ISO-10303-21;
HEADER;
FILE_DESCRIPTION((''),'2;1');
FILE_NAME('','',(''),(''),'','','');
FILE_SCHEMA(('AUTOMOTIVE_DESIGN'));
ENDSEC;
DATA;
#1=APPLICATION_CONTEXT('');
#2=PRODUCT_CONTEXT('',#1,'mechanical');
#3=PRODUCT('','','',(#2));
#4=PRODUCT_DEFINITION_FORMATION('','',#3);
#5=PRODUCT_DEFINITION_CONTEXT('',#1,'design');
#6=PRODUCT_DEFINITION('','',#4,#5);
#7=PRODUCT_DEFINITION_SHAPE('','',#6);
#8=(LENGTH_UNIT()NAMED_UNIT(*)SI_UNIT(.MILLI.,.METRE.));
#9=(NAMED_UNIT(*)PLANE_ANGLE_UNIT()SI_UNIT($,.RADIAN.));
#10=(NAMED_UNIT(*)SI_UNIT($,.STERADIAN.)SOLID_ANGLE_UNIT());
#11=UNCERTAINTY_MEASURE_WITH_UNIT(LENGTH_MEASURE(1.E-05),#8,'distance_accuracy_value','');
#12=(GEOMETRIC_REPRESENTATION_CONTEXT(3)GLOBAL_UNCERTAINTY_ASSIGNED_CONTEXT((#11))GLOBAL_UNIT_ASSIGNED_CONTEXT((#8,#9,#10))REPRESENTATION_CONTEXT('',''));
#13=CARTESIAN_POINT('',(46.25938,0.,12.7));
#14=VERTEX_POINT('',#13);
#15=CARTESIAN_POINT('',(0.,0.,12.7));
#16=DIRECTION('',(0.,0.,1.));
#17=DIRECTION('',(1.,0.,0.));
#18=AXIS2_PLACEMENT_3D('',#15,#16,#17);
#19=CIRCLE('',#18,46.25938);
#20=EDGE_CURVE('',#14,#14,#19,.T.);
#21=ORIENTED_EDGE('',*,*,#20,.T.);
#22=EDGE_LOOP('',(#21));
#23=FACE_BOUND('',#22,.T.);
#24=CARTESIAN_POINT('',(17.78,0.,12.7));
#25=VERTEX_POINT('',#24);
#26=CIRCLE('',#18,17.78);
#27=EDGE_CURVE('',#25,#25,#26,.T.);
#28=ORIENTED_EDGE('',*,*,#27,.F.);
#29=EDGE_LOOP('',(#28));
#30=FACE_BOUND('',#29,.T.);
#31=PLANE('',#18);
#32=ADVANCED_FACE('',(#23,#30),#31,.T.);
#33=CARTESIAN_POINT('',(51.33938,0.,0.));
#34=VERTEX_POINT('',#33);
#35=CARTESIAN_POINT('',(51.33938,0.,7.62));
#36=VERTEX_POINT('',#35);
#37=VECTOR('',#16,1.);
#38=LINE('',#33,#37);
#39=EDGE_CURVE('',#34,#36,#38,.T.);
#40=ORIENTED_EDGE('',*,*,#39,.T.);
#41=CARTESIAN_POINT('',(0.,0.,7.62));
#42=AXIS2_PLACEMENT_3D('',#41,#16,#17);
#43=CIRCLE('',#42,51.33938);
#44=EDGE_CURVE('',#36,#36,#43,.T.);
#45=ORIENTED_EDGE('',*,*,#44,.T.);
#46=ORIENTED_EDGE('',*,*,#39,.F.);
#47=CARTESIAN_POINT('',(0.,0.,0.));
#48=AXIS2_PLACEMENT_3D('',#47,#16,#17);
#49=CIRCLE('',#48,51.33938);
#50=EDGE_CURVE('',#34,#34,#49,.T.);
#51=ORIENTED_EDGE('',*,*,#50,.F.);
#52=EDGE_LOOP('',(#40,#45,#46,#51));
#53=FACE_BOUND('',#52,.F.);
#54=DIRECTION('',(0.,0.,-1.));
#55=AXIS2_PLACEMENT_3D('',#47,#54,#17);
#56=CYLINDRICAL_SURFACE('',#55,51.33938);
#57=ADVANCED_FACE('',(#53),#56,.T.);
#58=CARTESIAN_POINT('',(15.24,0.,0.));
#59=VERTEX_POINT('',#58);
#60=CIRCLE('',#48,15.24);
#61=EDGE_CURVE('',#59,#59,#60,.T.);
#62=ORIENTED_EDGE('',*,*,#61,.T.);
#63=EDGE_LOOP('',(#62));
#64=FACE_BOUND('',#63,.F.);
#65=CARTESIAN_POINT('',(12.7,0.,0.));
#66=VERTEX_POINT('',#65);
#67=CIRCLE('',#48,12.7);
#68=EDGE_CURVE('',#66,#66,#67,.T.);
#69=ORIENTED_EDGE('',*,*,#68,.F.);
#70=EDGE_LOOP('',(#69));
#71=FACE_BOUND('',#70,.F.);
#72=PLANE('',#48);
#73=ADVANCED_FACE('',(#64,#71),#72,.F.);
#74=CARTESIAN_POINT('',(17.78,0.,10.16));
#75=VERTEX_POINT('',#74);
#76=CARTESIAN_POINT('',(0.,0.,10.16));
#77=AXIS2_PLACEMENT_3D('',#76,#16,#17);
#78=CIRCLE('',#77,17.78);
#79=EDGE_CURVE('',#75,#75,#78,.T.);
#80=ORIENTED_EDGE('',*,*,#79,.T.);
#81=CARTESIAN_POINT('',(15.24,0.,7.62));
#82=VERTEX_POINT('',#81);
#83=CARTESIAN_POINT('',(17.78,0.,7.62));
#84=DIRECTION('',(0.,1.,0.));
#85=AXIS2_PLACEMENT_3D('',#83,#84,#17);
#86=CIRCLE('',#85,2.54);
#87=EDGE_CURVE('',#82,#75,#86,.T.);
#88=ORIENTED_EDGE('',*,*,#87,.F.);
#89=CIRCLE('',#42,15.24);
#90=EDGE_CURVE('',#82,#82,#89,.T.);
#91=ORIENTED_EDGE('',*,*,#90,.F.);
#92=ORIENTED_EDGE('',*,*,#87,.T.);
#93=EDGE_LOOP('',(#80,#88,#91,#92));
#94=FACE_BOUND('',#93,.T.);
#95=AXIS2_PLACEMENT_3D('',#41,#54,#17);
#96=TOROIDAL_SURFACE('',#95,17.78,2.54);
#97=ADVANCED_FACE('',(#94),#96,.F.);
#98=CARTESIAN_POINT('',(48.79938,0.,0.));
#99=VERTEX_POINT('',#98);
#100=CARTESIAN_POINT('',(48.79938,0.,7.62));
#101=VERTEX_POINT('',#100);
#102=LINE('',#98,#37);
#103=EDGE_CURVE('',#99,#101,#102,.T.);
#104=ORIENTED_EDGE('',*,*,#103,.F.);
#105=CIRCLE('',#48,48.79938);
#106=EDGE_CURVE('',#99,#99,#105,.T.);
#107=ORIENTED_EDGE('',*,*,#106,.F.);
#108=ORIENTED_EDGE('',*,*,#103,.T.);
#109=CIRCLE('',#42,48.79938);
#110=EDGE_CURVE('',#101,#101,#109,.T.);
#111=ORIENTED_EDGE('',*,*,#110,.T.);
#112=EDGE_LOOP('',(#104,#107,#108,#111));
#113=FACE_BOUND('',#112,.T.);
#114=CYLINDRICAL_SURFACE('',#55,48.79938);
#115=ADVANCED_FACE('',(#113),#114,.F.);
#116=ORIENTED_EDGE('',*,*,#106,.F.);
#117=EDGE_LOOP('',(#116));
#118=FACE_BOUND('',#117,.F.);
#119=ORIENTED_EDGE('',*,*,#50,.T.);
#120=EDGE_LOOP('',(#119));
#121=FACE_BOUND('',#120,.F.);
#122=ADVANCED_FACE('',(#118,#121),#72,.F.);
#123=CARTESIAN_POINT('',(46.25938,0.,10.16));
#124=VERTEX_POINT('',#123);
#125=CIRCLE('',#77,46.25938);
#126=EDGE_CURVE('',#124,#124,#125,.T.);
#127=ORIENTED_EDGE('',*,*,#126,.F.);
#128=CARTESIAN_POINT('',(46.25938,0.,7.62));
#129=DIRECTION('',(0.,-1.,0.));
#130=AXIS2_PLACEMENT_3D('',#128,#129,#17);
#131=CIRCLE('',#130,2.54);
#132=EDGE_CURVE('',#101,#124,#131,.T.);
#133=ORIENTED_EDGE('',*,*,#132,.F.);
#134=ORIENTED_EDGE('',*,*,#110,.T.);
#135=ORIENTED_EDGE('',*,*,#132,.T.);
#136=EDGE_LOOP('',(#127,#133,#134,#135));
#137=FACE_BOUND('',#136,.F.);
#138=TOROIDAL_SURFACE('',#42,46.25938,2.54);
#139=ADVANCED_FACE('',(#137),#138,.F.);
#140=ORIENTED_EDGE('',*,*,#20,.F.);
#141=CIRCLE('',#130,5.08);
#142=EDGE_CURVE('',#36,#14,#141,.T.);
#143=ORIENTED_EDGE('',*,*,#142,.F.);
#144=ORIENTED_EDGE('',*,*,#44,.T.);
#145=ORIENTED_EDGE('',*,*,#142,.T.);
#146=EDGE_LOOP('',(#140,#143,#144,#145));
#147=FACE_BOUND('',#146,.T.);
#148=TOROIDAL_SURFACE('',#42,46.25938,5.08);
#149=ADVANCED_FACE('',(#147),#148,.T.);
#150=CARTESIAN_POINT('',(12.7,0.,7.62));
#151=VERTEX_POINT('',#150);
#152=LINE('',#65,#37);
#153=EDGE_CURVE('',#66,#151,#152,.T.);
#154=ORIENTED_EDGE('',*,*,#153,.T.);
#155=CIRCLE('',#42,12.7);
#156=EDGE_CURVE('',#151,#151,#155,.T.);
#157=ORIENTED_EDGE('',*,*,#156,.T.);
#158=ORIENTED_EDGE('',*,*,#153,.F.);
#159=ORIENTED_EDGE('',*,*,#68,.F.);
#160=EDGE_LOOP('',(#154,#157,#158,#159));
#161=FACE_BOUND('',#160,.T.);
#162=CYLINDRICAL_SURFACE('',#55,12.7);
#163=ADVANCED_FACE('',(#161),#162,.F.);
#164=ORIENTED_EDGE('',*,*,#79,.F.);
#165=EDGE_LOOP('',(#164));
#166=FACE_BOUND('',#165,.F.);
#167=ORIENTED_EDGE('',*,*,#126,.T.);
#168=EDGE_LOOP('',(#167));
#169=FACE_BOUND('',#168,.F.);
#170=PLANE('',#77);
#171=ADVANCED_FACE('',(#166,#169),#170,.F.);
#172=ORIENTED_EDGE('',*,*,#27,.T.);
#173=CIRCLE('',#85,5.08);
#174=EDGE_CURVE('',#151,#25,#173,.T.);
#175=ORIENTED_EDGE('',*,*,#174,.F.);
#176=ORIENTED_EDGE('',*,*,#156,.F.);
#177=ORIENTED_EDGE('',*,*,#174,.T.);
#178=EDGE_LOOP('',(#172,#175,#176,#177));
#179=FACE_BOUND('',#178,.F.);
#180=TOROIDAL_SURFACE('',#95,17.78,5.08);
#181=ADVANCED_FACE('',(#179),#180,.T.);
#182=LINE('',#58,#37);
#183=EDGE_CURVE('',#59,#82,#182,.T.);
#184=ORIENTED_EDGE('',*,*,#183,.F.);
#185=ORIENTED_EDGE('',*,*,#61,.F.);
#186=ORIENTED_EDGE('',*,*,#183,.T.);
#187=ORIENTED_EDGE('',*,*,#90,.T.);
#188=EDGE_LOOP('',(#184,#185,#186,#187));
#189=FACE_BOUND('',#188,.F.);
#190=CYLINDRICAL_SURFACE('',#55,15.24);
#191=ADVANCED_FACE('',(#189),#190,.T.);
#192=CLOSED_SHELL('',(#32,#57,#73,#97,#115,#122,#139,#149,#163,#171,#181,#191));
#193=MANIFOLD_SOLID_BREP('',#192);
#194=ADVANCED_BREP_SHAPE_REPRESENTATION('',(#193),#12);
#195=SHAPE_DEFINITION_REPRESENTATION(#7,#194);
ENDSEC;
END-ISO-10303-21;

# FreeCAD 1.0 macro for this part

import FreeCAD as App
import Part
import Sketcher

V = App.Vector
Q = App.Units.Quantity


def edges_at(feature, points):
    """Names of the edges that pass closest to the given points."""
    edges = feature.Shape.Edges
    near = lambda p: min(range(len(edges)), key=lambda i: edges[i].distToShape(Part.Vertex(*p))[0])
    return sorted({f"Edge{near(p) + 1}" for p in points})


def faces_at(feature, points):
    """Names of the faces that lie closest to the given points."""
    faces = feature.Shape.Faces
    near = lambda p: min(range(len(faces)), key=lambda i: faces[i].distToShape(Part.Vertex(*p))[0])
    return sorted({f"Face{near(p) + 1}" for p in points})

doc = App.newDocument("Part")
params = doc.addObject("Spreadsheet::Sheet", "Params")
for row, (alias, value) in enumerate([
    ("sketch1_diameter", "1 in"),
    ("pad1_length", "0.5 in"),
    ("fillet_radius", "0.2 in"),
    ("thickness_wall", "0.1 in"),
], start=1):
    params.set(f"A{row}", alias)
    params.set(f"B{row}", "=" + value)
    params.setAlias(f"B{row}", alias)

body = doc.addObject("PartDesign::Body", "Body")

# Sketch on XY plane
sketch1 = body.newObject("Sketcher::SketchObject", "Sketch")
sketch1.AttachmentSupport = (doc.getObject("XY_Plane"), [""])
sketch1.MapMode = "FlatFace"
sketch1.addGeometry(Part.Circle(V(0, 0, 0), V(0, 0, 1), 51.33938), False)
sketch1.addGeometry(Part.Circle(V(0, 0, 0), V(0, 0, 1), 12.7), False)
sketch1.addConstraint(Sketcher.Constraint("Coincident", 0, 3, -1, 1))
sketch1.addConstraint(Sketcher.Constraint("Coincident", 1, 3, -1, 1))
sketch1.addConstraint(Sketcher.Constraint("Diameter", 1, Q("1 in")))
sketch1.addConstraint(Sketcher.Constraint("Diameter", 0, 102.67876))
sketch1.setExpression("Constraints[2]", "Params.sketch1_diameter")
pad1 = body.newObject("PartDesign::Pad", "Pad")
pad1.Profile = sketch1
pad1.setExpression("Length", "Params.pad1_length")
doc.recompute()

fillet = body.newObject("PartDesign::Fillet", "Fillet")
fillet.Base = (pad1, edges_at(pad1, [(-51.339, 0, 12.7), (-12.7, 0, 12.7)]))
fillet.setExpression("Radius", "Params.fillet_radius")
doc.recompute()

thickness = body.newObject("PartDesign::Thickness", "Thickness")
thickness.Base = (fillet, faces_at(fillet, [(-20.536, -20.536, 0)]))
thickness.setExpression("Value", "Params.thickness_wall")
thickness.Reversed = True
thickness.Join = "Arc"

doc.recompute()
